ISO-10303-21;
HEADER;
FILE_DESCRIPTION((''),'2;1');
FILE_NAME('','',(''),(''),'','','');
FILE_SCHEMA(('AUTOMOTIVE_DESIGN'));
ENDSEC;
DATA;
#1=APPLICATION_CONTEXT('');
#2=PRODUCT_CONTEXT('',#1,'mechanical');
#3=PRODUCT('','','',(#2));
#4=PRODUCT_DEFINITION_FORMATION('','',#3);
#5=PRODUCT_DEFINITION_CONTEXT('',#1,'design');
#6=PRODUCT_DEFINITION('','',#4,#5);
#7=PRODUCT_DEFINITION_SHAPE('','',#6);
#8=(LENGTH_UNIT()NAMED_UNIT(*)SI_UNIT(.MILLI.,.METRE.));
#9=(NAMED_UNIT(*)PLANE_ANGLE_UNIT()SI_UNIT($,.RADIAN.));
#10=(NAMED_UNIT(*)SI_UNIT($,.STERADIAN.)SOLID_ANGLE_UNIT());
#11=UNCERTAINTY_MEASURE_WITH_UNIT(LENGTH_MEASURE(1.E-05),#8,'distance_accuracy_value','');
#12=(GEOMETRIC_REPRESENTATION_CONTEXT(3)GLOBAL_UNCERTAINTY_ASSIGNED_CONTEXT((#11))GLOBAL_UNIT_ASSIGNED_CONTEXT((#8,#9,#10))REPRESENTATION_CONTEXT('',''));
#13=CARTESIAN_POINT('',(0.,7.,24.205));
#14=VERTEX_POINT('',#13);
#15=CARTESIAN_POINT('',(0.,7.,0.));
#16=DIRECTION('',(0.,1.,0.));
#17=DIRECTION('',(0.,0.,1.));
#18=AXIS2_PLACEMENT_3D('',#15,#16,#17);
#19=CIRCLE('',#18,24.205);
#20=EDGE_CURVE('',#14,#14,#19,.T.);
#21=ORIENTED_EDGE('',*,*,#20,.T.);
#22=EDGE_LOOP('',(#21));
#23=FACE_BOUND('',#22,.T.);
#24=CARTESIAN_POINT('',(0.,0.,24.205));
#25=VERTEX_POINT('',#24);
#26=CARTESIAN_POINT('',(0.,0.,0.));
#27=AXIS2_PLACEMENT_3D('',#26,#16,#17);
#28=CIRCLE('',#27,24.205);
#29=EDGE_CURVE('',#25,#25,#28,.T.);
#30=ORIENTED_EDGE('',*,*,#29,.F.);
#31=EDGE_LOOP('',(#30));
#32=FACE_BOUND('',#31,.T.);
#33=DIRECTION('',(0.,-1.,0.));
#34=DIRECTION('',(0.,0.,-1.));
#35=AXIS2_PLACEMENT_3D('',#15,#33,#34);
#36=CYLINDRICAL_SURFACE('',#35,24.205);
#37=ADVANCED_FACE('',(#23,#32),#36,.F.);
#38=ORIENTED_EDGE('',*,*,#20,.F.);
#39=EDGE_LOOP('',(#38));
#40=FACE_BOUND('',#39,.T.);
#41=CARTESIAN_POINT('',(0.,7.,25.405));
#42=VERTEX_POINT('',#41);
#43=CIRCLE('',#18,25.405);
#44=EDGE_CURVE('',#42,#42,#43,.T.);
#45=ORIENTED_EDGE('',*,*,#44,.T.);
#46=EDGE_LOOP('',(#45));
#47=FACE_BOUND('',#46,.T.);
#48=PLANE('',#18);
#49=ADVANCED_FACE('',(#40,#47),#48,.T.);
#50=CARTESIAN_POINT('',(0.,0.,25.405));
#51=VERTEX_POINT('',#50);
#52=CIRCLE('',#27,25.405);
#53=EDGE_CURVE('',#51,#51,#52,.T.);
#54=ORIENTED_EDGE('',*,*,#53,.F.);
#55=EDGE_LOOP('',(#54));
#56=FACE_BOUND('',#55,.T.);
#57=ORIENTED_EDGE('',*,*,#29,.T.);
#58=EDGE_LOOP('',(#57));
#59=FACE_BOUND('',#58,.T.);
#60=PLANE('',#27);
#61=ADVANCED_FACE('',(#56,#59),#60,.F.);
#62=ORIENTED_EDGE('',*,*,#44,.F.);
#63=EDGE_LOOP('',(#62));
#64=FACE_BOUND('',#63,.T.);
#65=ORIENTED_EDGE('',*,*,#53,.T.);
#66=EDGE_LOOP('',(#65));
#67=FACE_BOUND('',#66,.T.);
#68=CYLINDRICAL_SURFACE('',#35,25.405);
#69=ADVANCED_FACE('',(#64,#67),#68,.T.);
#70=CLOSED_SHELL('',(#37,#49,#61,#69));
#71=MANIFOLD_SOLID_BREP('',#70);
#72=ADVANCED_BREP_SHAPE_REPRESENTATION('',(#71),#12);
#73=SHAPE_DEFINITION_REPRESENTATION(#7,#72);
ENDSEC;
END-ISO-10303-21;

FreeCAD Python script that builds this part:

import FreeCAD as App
import Part
import Sketcher
from FreeCAD import Vector
Q = App.Units.Quantity

doc = App.newDocument("Part")
body = doc.addObject("PartDesign::Body", "Body")

sketch1 = body.newObject("Sketcher::SketchObject", "Sketch")
sketch1.AttachmentSupport = (doc.getObject("XZ_Plane"), [""])
sketch1.MapMode = "FlatFace"
sketch1.addGeometry(Part.Circle(Vector(0, 0, 0), Vector(0, 0, 1), 25), False)
sketch1.addGeometry(Part.Circle(Vector(0, 0, 0), Vector(0, 0, 1), 24), False)
sketch1.addConstraint(Sketcher.Constraint("Coincident", 0, 3, -1, 1))
sketch1.addConstraint(Sketcher.Constraint("Coincident", 1, 3, -1, 1))
sketch1.addConstraint(Sketcher.Constraint("Diameter", 0, Q("50.81 mm")))
sketch1.addConstraint(Sketcher.Constraint("Diameter", 1, Q("48.41 mm")))
pad1 = body.newObject("PartDesign::Pad", "Pad")
pad1.Profile = sketch1
pad1.Length = 7
pad1.Reversed = True

doc.recompute()
